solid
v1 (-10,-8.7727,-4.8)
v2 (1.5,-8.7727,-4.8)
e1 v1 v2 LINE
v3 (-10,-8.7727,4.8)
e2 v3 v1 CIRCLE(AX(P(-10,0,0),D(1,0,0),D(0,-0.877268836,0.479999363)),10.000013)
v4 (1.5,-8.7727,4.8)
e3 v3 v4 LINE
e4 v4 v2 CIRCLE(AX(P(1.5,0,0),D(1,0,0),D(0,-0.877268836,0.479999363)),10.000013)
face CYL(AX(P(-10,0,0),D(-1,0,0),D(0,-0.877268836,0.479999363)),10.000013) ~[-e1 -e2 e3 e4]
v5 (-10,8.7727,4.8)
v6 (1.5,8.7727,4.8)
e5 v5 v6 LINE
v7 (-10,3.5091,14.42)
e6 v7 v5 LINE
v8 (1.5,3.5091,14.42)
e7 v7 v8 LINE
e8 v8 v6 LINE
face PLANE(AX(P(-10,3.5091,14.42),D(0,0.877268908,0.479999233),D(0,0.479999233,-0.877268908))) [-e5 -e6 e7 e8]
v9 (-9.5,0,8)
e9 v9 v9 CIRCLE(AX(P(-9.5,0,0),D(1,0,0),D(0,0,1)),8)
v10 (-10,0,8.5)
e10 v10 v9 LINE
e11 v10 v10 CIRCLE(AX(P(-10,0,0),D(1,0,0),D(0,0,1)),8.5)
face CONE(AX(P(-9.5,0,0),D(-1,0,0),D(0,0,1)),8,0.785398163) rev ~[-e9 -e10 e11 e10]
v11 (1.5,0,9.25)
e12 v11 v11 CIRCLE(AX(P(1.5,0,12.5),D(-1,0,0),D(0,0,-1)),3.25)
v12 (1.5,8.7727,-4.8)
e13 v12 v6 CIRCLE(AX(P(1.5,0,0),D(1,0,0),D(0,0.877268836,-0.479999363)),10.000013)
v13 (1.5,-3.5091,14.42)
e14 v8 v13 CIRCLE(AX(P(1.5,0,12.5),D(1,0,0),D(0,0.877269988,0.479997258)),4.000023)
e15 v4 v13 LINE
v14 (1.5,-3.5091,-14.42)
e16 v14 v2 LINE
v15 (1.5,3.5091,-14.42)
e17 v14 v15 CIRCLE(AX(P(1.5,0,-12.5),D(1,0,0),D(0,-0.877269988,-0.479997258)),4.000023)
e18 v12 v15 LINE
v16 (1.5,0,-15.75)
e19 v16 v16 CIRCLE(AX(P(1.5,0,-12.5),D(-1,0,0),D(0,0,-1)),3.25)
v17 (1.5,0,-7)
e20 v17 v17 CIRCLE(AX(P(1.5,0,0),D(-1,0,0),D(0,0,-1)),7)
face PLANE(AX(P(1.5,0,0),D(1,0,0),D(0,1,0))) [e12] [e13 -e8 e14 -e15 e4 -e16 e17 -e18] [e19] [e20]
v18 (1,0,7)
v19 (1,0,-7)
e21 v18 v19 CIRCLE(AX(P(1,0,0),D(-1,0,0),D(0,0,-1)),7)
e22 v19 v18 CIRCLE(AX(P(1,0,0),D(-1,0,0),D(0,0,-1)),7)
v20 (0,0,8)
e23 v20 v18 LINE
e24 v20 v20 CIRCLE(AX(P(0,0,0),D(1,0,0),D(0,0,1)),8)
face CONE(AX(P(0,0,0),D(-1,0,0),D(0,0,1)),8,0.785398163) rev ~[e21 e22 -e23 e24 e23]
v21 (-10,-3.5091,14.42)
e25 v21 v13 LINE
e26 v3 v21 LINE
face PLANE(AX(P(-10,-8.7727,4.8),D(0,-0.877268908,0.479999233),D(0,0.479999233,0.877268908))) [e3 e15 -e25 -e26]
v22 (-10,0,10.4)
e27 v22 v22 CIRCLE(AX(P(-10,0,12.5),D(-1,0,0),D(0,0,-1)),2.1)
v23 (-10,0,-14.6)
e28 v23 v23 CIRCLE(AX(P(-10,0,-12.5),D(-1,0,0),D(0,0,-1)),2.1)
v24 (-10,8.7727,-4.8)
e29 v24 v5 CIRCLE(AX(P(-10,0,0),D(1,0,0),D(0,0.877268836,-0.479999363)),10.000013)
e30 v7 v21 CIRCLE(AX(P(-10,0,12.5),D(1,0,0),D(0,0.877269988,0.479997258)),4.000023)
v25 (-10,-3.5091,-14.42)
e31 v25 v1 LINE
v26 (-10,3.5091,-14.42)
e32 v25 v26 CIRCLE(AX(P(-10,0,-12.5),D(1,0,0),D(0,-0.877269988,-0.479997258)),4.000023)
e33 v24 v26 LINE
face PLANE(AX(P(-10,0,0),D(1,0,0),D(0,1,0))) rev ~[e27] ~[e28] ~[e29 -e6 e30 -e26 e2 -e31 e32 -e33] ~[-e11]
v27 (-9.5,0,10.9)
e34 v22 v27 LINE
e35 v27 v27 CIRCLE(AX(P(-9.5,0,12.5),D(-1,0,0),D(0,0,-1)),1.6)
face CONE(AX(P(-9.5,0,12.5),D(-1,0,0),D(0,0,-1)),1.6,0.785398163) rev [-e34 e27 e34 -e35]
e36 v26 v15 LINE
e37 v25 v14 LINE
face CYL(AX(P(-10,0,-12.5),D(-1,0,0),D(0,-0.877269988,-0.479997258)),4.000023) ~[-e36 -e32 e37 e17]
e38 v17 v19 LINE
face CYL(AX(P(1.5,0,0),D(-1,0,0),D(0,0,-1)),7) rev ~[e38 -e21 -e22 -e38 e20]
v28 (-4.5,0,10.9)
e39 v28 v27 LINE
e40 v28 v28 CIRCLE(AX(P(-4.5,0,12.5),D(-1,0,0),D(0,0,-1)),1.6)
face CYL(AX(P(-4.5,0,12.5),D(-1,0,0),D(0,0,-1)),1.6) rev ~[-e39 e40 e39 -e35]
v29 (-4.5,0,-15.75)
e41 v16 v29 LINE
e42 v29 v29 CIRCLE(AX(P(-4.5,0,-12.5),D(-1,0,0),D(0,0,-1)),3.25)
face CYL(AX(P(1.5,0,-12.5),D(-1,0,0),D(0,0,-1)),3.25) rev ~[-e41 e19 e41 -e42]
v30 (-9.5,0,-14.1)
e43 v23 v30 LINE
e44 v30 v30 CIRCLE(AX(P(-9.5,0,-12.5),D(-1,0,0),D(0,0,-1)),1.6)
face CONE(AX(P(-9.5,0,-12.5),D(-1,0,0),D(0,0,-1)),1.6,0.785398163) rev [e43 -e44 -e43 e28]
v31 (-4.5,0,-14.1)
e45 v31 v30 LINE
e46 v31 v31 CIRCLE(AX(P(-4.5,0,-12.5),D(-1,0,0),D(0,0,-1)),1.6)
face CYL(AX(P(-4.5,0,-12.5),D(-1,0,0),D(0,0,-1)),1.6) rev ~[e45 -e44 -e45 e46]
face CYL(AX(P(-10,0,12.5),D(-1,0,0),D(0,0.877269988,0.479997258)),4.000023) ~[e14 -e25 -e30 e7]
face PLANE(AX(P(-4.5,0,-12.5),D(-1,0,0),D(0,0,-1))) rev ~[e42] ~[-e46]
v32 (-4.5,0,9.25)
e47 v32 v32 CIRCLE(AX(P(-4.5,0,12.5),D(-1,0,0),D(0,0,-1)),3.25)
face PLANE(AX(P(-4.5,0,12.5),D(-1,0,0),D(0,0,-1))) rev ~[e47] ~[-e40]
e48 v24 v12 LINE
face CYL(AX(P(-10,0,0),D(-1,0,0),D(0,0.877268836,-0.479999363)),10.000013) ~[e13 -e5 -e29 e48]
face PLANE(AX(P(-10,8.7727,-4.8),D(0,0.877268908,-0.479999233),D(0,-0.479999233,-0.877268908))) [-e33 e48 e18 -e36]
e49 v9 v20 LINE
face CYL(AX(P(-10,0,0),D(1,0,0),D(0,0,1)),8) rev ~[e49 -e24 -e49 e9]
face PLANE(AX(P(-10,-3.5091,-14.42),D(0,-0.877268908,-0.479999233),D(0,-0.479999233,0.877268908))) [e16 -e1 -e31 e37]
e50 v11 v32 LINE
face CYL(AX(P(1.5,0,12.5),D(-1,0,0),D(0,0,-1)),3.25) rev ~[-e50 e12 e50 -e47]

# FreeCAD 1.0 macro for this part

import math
import FreeCAD as App
import Part
import Sketcher

V = App.Vector


def edges_at(feature, points):
    """Names of the edges that pass closest to the given points."""
    edges = feature.Shape.Edges
    near = lambda p: min(range(len(edges)), key=lambda i: edges[i].distToShape(Part.Vertex(*p))[0])
    return sorted({f"Edge{near(p) + 1}" for p in points})

doc = App.newDocument("Part")
body = doc.addObject("PartDesign::Body", "Body")

# Sketch on YZ plane
sketch1 = doc.addObject("Sketcher::SketchObject", "Sketch")
body.addObject(sketch1)
sketch1.AttachmentSupport = (doc.YZ_Plane, [""])
sketch1.MapMode = "FlatFace"
sketch1.AttachmentOffset = App.Placement(V(0, 0, -10), App.Rotation())
sketch1.addGeometry([
    Part.LineSegment(V(8.8, 4.8, 0), V(3.5, 14.4, 0)),  # 0
    Part.ArcOfCircle(Part.Circle(V(0, 12.5, 0), V(0, 0, 1), 4), math.radians(29), math.radians(151)),  # 1
    Part.LineSegment(V(-3.5, 14.4, 0), V(-8.8, 4.8, 0)),  # 2
    Part.ArcOfCircle(Part.Circle(V(0, 0, 0), V(0, 0, 1), 10), math.radians(151), math.radians(209)),  # 3
    Part.LineSegment(V(-8.8, -4.8, 0), V(-3.5, -14.4, 0)),  # 4
    Part.ArcOfCircle(Part.Circle(V(0, -12.5, 0), V(0, 0, 1), 4), math.radians(-151), math.radians(-29)),  # 5
    Part.LineSegment(V(3.5, -14.4, 0), V(8.8, -4.8, 0)),  # 6
    Part.ArcOfCircle(Part.Circle(V(0, 0, 0), V(0, 0, 1), 10), math.radians(-29), math.radians(29)),  # 7
], False)
sketch1.addConstraint([
    Sketcher.Constraint("Tangent", 0, 2, 1, 1),
    Sketcher.Constraint("Tangent", 1, 2, 2, 1),
    Sketcher.Constraint("Tangent", 2, 2, 3, 1),
    Sketcher.Constraint("Tangent", 3, 2, 4, 1),
    Sketcher.Constraint("Tangent", 4, 2, 5, 1),
    Sketcher.Constraint("Tangent", 5, 2, 6, 1),
    Sketcher.Constraint("Tangent", 6, 2, 7, 1),
    Sketcher.Constraint("Tangent", 7, 2, 0, 1),
    Sketcher.Constraint("Coincident", 3, 3, -1, 1),
    Sketcher.Constraint("Coincident", 7, 3, -1, 1),
    Sketcher.Constraint("Equal", 1, 5),
    Sketcher.Constraint("Equal", 3, 7),
    Sketcher.Constraint("Symmetric", 1, 3, 5, 3, -1, 1),
    Sketcher.Constraint("PointOnObject", 1, 3, -2),
    Sketcher.Constraint("Radius", 1, 4.0),
    Sketcher.Constraint("Radius", 3, 10.0),
    Sketcher.Constraint("DistanceY", 5, 3, 1, 3, 25.0),
])
pad1 = doc.addObject("PartDesign::Pad", "Pad")
body.addObject(pad1)
pad1.Profile = sketch1
pad1.Length = 11.5

# Sketch on YZ plane
sketch2 = doc.addObject("Sketcher::SketchObject", "Sketch001")
body.addObject(sketch2)
sketch2.AttachmentSupport = (doc.YZ_Plane, [""])
sketch2.MapMode = "FlatFace"
sketch2.AttachmentOffset = App.Placement(V(0, 0, 1.5), App.Rotation())
sketch2.addGeometry(Part.Circle(V(0, 0, 0), V(0, 0, 1), 7), False)
sketch2.addConstraint([
    Sketcher.Constraint("Coincident", 0, 3, -1, 1),
    Sketcher.Constraint("Diameter", 0, 14.0),
])
doc.recompute()
hole = doc.addObject("PartDesign::Hole", "Hole")
body.addObject(hole)
hole.Profile = sketch2
hole.ThreadType = "None"
hole.Diameter = 14
hole.DepthType = "Dimension"
hole.Depth = 11.5
hole.DrillPoint = "Flat"

# Sketch on YZ plane
sketch3 = doc.addObject("Sketcher::SketchObject", "Sketch002")
body.addObject(sketch3)
sketch3.AttachmentSupport = (doc.YZ_Plane, [""])
sketch3.MapMode = "FlatFace"
sketch3.AttachmentOffset = App.Placement(V(0, 0, 1.5), App.Rotation())
sketch3.addGeometry(Part.Circle(V(0, -12.5, 0), V(0, 0, 1), 1.6), False)
sketch3.addConstraint([
    Sketcher.Constraint("PointOnObject", 0, 3, -2),
    Sketcher.Constraint("Diameter", 0, 3.2),
    Sketcher.Constraint("DistanceY", 0, 3, -1, 1, 12.5),
])
doc.recompute()
hole2 = doc.addObject("PartDesign::Hole", "Hole001")
body.addObject(hole2)
hole2.Profile = sketch3
hole2.ThreadType = "None"
hole2.Diameter = 3.2
hole2.DepthType = "Dimension"
hole2.Depth = 11.5
hole2.DrillPoint = "Flat"
hole2.HoleCutType = "Counterbore"
hole2.HoleCutDiameter = 6.5
hole2.HoleCutDepth = 6

# Sketch on YZ plane
sketch4 = doc.addObject("Sketcher::SketchObject", "Sketch003")
body.addObject(sketch4)
sketch4.AttachmentSupport = (doc.YZ_Plane, [""])
sketch4.MapMode = "FlatFace"
sketch4.AttachmentOffset = App.Placement(V(0, 0, 1.5), App.Rotation())
sketch4.addGeometry(Part.Circle(V(0, 12.5, 0), V(0, 0, 1), 1.6), False)
sketch4.addConstraint([
    Sketcher.Constraint("PointOnObject", 0, 3, -2),
    Sketcher.Constraint("Diameter", 0, 3.2),
    Sketcher.Constraint("DistanceY", -1, 1, 0, 3, 12.5),
])
doc.recompute()
hole3 = doc.addObject("PartDesign::Hole", "Hole002")
body.addObject(hole3)
hole3.Profile = sketch4
hole3.ThreadType = "None"
hole3.Diameter = 3.2
hole3.DepthType = "Dimension"
hole3.Depth = 11.5
hole3.DrillPoint = "Flat"
hole3.HoleCutType = "Counterbore"
hole3.HoleCutDiameter = 6.5
hole3.HoleCutDepth = 6

# Sketch on YZ plane
sketch5 = doc.addObject("Sketcher::SketchObject", "Sketch004")
body.addObject(sketch5)
sketch5.AttachmentSupport = (doc.YZ_Plane, [""])
sketch5.MapMode = "FlatFace"
sketch5.AttachmentOffset = App.Placement(V(0, 0, -10), App.Rotation())
sketch5.addGeometry(Part.Circle(V(0, 0, 0), V(0, 0, 1), 8), False)
sketch5.addConstraint([
    Sketcher.Constraint("Coincident", 0, 3, -1, 1),
    Sketcher.Constraint("Diameter", 0, 16.0),
])
doc.recompute()
hole4 = doc.addObject("PartDesign::Hole", "Hole003")
body.addObject(hole4)
hole4.Profile = sketch5
hole4.ThreadType = "None"
hole4.Diameter = 16
hole4.DepthType = "Dimension"
hole4.Depth = 10
hole4.DrillPoint = "Angled"
hole4.DrillPointAngle = 90
hole4.Reversed = True
doc.recompute()

chamfer = doc.addObject("PartDesign::Chamfer", "Chamfer")
body.addObject(chamfer)
chamfer.Base = (hole4, edges_at(hole4, [(-10, 0, -10.9)]))
chamfer.Size = 0.5
doc.recompute()

chamfer2 = doc.addObject("PartDesign::Chamfer", "Chamfer001")
body.addObject(chamfer2)
chamfer2.Base = (chamfer, edges_at(chamfer, [(-10, 0, 14.1)]))
chamfer2.Size = 0.5
doc.recompute()

chamfer3 = doc.addObject("PartDesign::Chamfer", "Chamfer002")
body.addObject(chamfer3)
chamfer3.Base = (chamfer2, edges_at(chamfer2, [(-10, 0, -8)]))
chamfer3.Size = 0.5

doc.recompute()
